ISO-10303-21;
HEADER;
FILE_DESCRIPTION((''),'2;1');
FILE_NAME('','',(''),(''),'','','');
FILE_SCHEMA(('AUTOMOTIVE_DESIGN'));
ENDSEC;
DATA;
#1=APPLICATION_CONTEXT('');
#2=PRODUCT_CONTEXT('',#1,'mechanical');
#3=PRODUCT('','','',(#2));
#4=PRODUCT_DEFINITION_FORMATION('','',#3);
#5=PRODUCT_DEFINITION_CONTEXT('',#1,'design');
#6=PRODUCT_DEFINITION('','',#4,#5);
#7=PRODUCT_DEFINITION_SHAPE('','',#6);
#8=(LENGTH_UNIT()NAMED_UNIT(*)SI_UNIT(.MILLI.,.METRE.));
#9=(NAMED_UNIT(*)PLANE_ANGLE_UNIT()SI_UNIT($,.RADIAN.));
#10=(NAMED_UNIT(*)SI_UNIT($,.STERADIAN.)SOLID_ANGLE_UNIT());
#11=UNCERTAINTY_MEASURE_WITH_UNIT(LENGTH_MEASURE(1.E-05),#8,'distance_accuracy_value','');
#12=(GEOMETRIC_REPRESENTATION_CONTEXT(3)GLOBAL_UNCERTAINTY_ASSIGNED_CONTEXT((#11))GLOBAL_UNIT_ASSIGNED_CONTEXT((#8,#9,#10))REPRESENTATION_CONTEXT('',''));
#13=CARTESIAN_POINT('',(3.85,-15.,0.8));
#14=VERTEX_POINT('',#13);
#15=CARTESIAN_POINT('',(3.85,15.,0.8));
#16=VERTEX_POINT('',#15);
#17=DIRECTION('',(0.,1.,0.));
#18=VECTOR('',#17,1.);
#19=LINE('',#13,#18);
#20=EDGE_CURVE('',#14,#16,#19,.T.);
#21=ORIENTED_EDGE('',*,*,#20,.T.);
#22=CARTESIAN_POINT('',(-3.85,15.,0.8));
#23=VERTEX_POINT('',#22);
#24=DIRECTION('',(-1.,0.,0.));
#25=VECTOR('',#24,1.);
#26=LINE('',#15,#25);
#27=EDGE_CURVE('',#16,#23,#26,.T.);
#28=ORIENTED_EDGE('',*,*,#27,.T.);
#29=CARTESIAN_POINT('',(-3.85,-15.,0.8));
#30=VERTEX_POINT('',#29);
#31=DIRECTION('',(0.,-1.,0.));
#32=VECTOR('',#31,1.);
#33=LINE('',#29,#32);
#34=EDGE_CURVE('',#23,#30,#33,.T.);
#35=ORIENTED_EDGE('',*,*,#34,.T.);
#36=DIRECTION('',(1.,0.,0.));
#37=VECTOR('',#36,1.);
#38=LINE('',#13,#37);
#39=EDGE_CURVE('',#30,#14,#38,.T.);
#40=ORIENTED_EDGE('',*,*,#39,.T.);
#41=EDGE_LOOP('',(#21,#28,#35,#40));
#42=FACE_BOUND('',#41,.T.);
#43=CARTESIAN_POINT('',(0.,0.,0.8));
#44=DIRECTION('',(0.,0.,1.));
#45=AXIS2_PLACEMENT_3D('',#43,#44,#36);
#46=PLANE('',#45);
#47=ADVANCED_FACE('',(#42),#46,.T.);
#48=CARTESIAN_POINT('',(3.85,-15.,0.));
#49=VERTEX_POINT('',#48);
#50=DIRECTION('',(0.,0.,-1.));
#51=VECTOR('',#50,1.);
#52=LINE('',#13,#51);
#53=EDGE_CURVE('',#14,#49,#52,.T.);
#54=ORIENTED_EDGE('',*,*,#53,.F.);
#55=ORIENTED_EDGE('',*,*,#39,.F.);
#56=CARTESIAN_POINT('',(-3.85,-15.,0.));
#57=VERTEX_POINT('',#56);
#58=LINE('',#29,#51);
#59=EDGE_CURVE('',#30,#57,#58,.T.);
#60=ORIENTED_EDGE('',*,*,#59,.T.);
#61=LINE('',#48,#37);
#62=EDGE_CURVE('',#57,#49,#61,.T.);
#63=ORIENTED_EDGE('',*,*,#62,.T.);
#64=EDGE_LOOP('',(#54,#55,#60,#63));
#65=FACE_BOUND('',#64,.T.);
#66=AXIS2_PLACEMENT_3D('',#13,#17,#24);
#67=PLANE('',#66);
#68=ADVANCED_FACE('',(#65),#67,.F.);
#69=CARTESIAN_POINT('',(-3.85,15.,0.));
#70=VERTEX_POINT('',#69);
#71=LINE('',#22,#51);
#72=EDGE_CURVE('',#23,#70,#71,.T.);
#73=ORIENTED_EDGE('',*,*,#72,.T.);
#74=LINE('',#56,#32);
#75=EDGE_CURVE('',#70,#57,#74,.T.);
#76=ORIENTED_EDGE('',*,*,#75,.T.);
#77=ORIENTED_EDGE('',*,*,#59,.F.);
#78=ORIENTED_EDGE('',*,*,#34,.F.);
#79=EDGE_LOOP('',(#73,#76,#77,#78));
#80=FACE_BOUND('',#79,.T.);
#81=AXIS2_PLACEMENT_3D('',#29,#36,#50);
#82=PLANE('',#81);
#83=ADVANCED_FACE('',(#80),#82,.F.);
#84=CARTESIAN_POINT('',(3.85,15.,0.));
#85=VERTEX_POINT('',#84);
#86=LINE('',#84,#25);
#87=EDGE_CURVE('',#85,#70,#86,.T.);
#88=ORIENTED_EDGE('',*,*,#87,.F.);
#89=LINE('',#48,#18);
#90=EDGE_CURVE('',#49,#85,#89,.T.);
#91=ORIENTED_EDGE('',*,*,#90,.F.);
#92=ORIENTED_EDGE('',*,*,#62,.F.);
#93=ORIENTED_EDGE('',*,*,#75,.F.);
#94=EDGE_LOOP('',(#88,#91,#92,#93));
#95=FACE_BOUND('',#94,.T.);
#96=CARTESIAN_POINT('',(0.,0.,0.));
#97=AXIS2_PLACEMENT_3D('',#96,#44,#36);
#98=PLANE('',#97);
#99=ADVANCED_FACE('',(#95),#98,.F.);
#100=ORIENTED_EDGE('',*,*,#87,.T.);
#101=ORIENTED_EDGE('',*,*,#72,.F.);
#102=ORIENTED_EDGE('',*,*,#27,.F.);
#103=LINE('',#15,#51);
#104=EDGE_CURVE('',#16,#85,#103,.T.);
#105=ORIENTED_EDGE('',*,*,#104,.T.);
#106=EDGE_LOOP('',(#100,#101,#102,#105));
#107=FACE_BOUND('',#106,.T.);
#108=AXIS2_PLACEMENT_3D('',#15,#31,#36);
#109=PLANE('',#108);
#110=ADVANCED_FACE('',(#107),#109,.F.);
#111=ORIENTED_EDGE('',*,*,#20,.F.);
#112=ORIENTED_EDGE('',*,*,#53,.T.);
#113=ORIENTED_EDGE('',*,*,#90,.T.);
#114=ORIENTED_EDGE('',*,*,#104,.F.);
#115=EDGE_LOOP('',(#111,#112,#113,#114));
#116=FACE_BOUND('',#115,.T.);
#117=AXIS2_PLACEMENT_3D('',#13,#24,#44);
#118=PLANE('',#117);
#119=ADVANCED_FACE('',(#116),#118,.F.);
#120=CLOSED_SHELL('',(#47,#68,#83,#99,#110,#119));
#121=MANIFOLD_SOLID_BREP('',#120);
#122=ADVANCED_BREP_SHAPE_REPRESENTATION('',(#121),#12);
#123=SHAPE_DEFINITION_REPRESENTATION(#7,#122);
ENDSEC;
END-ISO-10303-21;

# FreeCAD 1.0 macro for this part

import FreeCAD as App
import Part
import Sketcher

doc = App.newDocument("Part")
body = doc.addObject("PartDesign::Body", "Body")

sketch1 = body.newObject("Sketcher::SketchObject", "Sketch")
sketch1.AttachmentSupport = (doc.getObject("XY_Plane"), [""])
sketch1.MapMode = "FlatFace"
sketch1.addGeometry(Part.LineSegment(App.Vector(-4, 15, 0), App.Vector(-4, -15, 0)), False)
sketch1.addGeometry(Part.LineSegment(App.Vector(-4, -15, 0), App.Vector(4, -15, 0)), False)
sketch1.addGeometry(Part.LineSegment(App.Vector(4, -15, 0), App.Vector(4, 15, 0)), False)
sketch1.addGeometry(Part.LineSegment(App.Vector(4, 15, 0), App.Vector(-4, 15, 0)), False)
sketch1.addConstraint(Sketcher.Constraint("Coincident", 0, 2, 1, 1))
sketch1.addConstraint(Sketcher.Constraint("Coincident", 1, 2, 2, 1))
sketch1.addConstraint(Sketcher.Constraint("Coincident", 2, 2, 3, 1))
sketch1.addConstraint(Sketcher.Constraint("Coincident", 3, 2, 0, 1))
sketch1.addConstraint(Sketcher.Constraint("Vertical", 0))
sketch1.addConstraint(Sketcher.Constraint("Horizontal", 1))
sketch1.addConstraint(Sketcher.Constraint("Vertical", 2))
sketch1.addConstraint(Sketcher.Constraint("Horizontal", 3))
sketch1.addConstraint(Sketcher.Constraint("Symmetric", 0, 2, 2, 2, -1, 1))
sketch1.addConstraint(Sketcher.Constraint("DistanceY", 0, 2, 0, 1, 30.0))
sketch1.addConstraint(Sketcher.Constraint("DistanceX", 1, 1, 1, 2, 7.7))
pad1 = body.newObject("PartDesign::Pad", "Pad")
pad1.Profile = sketch1
pad1.Length = 0.8

doc.recompute()
